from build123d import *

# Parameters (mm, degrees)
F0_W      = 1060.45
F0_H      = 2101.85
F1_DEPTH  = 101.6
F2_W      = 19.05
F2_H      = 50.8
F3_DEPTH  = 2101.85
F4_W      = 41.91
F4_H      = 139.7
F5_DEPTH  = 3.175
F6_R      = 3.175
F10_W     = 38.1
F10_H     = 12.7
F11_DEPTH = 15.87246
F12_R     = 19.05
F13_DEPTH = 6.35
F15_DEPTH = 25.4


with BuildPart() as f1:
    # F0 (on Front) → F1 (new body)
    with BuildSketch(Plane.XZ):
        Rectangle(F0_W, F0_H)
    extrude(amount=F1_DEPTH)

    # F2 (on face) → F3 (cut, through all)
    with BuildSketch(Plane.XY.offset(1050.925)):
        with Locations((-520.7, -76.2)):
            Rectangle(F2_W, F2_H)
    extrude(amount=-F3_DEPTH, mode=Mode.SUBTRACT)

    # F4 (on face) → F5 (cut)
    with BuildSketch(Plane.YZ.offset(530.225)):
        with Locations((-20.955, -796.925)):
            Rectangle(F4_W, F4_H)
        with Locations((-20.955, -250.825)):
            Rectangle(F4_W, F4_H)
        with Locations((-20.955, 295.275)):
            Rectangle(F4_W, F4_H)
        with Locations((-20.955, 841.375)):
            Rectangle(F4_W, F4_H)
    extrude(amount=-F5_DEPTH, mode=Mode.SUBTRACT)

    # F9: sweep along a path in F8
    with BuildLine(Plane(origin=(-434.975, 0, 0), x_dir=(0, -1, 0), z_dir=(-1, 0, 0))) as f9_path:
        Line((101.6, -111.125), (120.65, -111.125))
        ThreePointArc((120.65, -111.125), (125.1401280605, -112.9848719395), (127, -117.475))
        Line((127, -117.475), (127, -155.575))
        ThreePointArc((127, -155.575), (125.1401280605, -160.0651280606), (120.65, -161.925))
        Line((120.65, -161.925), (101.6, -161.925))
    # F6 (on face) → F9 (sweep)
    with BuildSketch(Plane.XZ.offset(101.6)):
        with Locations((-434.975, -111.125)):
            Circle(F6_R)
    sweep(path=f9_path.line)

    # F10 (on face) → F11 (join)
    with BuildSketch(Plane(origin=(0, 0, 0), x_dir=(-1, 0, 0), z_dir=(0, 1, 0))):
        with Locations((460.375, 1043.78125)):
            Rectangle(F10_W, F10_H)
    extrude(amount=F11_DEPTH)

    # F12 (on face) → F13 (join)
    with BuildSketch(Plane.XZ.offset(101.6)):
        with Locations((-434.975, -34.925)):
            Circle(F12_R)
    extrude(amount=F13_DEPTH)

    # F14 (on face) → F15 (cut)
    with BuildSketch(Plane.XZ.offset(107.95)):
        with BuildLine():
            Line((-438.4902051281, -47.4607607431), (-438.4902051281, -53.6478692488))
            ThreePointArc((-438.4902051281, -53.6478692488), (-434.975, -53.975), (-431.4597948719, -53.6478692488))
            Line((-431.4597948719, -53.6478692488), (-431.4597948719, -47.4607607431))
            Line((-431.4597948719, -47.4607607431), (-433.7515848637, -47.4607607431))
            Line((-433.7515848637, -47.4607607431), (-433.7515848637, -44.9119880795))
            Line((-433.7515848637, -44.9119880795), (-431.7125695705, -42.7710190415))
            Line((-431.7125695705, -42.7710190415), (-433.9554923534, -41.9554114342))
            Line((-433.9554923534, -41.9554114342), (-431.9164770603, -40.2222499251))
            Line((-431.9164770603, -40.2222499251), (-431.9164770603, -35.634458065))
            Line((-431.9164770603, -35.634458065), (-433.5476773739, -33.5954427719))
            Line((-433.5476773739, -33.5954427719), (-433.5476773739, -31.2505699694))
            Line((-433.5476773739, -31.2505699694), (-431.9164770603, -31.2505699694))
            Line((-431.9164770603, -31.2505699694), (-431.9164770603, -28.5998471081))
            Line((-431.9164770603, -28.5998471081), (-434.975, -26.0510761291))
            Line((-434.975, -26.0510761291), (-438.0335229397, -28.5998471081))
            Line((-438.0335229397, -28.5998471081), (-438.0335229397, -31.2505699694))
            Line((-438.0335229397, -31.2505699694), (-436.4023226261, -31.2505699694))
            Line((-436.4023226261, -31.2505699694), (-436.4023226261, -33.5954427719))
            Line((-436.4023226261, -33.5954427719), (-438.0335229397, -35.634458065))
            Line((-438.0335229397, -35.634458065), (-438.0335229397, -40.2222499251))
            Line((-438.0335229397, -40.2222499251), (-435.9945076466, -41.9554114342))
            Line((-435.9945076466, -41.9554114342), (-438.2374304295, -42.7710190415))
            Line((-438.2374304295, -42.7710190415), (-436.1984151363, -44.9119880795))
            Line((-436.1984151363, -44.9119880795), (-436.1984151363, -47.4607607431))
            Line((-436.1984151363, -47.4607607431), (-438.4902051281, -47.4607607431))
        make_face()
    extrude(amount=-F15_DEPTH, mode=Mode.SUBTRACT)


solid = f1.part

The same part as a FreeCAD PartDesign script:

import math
import FreeCAD as App
import Part
import Sketcher

V = App.Vector
Q = App.Units.Quantity


def add_polygon(sketch, points):
    """Adds a closed chain of lines whose ends are joined by coincident constraints."""
    first, n = sketch.GeometryCount, len(points)
    for a, b in zip(points, points[1:] + points[:1]):
        sketch.addGeometry(Part.LineSegment(App.Vector(*a, 0), App.Vector(*b, 0)), False)
    for i in range(n):
        sketch.addConstraint(Sketcher.Constraint("Coincident", first + i, 2, first + (i + 1) % n, 1))

doc = App.newDocument("Part")
body = doc.addObject("PartDesign::Body", "Body")

# Sketch on XZ plane
sketch1 = body.newObject("Sketcher::SketchObject", "Sketch")
sketch1.AttachmentSupport = (doc.getObject("XZ_Plane"), [""])
sketch1.MapMode = "FlatFace"
add_polygon(sketch1, [(-530, 1051), (-530, -1051), (530, -1051), (530, 1051)])  # lines 0-3
sketch1.addConstraint(Sketcher.Constraint("Vertical", 0))
sketch1.addConstraint(Sketcher.Constraint("Horizontal", 1))
sketch1.addConstraint(Sketcher.Constraint("Vertical", 2))
sketch1.addConstraint(Sketcher.Constraint("Horizontal", 3))
sketch1.addConstraint(Sketcher.Constraint("Symmetric", 0, 2, 2, 2, -1, 1))
sketch1.addConstraint(Sketcher.Constraint("DistanceX", 1, 1, 1, 2, Q("41.75 in")))
sketch1.addConstraint(Sketcher.Constraint("DistanceY", 0, 2, 0, 1, Q("82.75 in")))
pad1 = body.newObject("PartDesign::Pad", "Pad")
pad1.Profile = sketch1
pad1.Length = Q("4 in")

# Sketch on XY plane
sketch2 = body.newObject("Sketcher::SketchObject", "Sketch001")
sketch2.AttachmentSupport = (doc.getObject("XY_Plane"), [""])
sketch2.MapMode = "FlatFace"
sketch2.AttachmentOffset = App.Placement(V(0, 0, 41.375 * 25.4), App.Rotation())
add_polygon(sketch2, [(-530, -51), (-530, -102), (-511, -102), (-511, -51)])  # lines 0-3
sketch2.addConstraint(Sketcher.Constraint("Vertical", 0))
sketch2.addConstraint(Sketcher.Constraint("Horizontal", 1))
sketch2.addConstraint(Sketcher.Constraint("Vertical", 2))
sketch2.addConstraint(Sketcher.Constraint("Horizontal", 3))
sketch2.addConstraint(Sketcher.Constraint("DistanceY", 0, 2, 0, 1, Q("2 in")))
sketch2.addConstraint(Sketcher.Constraint("DistanceY", 0, 2, -1, 1, Q("4 in")))
sketch2.addConstraint(Sketcher.Constraint("DistanceX", 1, 1, 1, 2, Q("0.75 in")))
sketch2.addConstraint(Sketcher.Constraint("DistanceX", 0, 2, -1, 1, Q("20.875 in")))
pocket1 = body.newObject("PartDesign::Pocket", "Pocket")
pocket1.Profile = sketch2
pocket1.Type = "ThroughAll"

# Sketch on YZ plane
sketch3 = body.newObject("Sketcher::SketchObject", "Sketch002")
sketch3.AttachmentSupport = (doc.getObject("YZ_Plane"), [""])
sketch3.MapMode = "FlatFace"
sketch3.AttachmentOffset = App.Placement(V(0, 0, 20.875 * 25.4), App.Rotation())
add_polygon(sketch3, [(-42, -727), (-42, -867), (0, -867), (0, -727)])  # lines 0-3
add_polygon(sketch3, [(-42, -181), (-42, -321), (0, -321), (0, -181)])  # lines 4-7
add_polygon(sketch3, [(-42, 365), (-42, 225), (0, 225), (0, 365)])  # lines 8-11
add_polygon(sketch3, [(-42, 911), (-42, 772), (0, 772), (0, 911)])  # lines 12-15
sketch3.addConstraint(Sketcher.Constraint("Vertical", 0))
sketch3.addConstraint(Sketcher.Constraint("Horizontal", 1))
sketch3.addConstraint(Sketcher.Constraint("Vertical", 2))
sketch3.addConstraint(Sketcher.Constraint("Horizontal", 3))
sketch3.addConstraint(Sketcher.Constraint("Vertical", 4))
sketch3.addConstraint(Sketcher.Constraint("Horizontal", 5))
sketch3.addConstraint(Sketcher.Constraint("Vertical", 6))
sketch3.addConstraint(Sketcher.Constraint("Horizontal", 7))
sketch3.addConstraint(Sketcher.Constraint("Vertical", 8))
sketch3.addConstraint(Sketcher.Constraint("Horizontal", 9))
sketch3.addConstraint(Sketcher.Constraint("Vertical", 10))
sketch3.addConstraint(Sketcher.Constraint("Horizontal", 11))
sketch3.addConstraint(Sketcher.Constraint("Vertical", 12))
sketch3.addConstraint(Sketcher.Constraint("Horizontal", 13))
sketch3.addConstraint(Sketcher.Constraint("Vertical", 14))
sketch3.addConstraint(Sketcher.Constraint("Horizontal", 15))
sketch3.addConstraint(Sketcher.Constraint("PointOnObject", 1, 2, -2))
sketch3.addConstraint(Sketcher.Constraint("PointOnObject", 5, 2, -2))
sketch3.addConstraint(Sketcher.Constraint("PointOnObject", 9, 2, -2))
sketch3.addConstraint(Sketcher.Constraint("PointOnObject", 13, 2, -2))
sketch3.addConstraint(Sketcher.Constraint("Vertical", 3, 2, 4, 2))
sketch3.addConstraint(Sketcher.Constraint("Vertical", 7, 2, 8, 2))
sketch3.addConstraint(Sketcher.Constraint("Vertical", 11, 2, 12, 2))
sketch3.addConstraint(Sketcher.Constraint("Equal", 2, 4))
sketch3.addConstraint(Sketcher.Constraint("Equal", 6, 8))
sketch3.addConstraint(Sketcher.Constraint("Equal", 10, 12))
sketch3.addConstraint(Sketcher.Constraint("DistanceY", 0, 2, 0, 1, Q("5.5 in")))
sketch3.addConstraint(Sketcher.Constraint("DistanceY", 3, 2, 4, 2, Q("16 in")))
sketch3.addConstraint(Sketcher.Constraint("DistanceY", 7, 2, 8, 2, Q("16 in")))
sketch3.addConstraint(Sketcher.Constraint("DistanceY", 11, 2, 12, 2, Q("16 in")))
sketch3.addConstraint(Sketcher.Constraint("DistanceX", 1, 1, 1, 2, Q("1.65 in")))
sketch3.addConstraint(Sketcher.Constraint("DistanceY", 0, 2, -1, 1, Q("34.125 in")))
pocket2 = body.newObject("PartDesign::Pocket", "Pocket001")
pocket2.Profile = sketch3
pocket2.Length = Q("0.125 in")

# Sketch on XZ plane
sketch4 = body.newObject("Sketcher::SketchObject", "Sketch003")
sketch4.AttachmentSupport = (doc.getObject("XZ_Plane"), [""])
sketch4.MapMode = "FlatFace"
sketch4.AttachmentOffset = App.Placement(V(0, 0, 4 * 25.4), App.Rotation())
sketch4.addGeometry(Part.Circle(V(-435, -111.1, 0), V(0, 0, 1), 3.2), False)
sketch4.addConstraint(Sketcher.Constraint("Diameter", 0, Q("0.25 in")))
sketch4.addConstraint(Sketcher.Constraint("DistanceX", 0, 3, -1, 1, Q("17.125 in")))
sketch4.addConstraint(Sketcher.Constraint("DistanceY", 0, 3, -1, 1, Q("4.375 in")))

# Sketch on YZ plane
sketch5 = body.newObject("Sketcher::SketchObject", "Sketch004")
sketch5.AttachmentSupport = (doc.getObject("YZ_Plane"), [""])
sketch5.MapMode = "FlatFace"
sketch5.AttachmentOffset = App.Placement(V(0, 0, -17.125 * 25.4), App.Rotation())
sketch5.addGeometry(Part.LineSegment(V(-102, -111, 0), V(-121, -111, 0)), False)
sketch5.addGeometry(Part.ArcOfCircle(Part.Circle(V(-121, -117, 0), V(0, 0, 1), 6), math.radians(90), math.radians(180)), False)
sketch5.addGeometry(Part.LineSegment(V(-127, -117, 0), V(-127, -156, 0)), False)
sketch5.addGeometry(Part.ArcOfCircle(Part.Circle(V(-121, -156, 0), V(0, 0, 1), 6), math.radians(180), math.radians(270)), False)
sketch5.addGeometry(Part.LineSegment(V(-121, -162, 0), V(-102, -162, 0)), False)
sketch5.addConstraint(Sketcher.Constraint("Tangent", 0, 2, 1, 1))
sketch5.addConstraint(Sketcher.Constraint("Tangent", 1, 2, 2, 1))
sketch5.addConstraint(Sketcher.Constraint("Tangent", 2, 2, 3, 1))
sketch5.addConstraint(Sketcher.Constraint("Tangent", 3, 2, 4, 1))
sketch5.addConstraint(Sketcher.Constraint("Horizontal", 0))
sketch5.addConstraint(Sketcher.Constraint("Vertical", 2))
sketch5.addConstraint(Sketcher.Constraint("Horizontal", 4))
sketch5.addConstraint(Sketcher.Constraint("Equal", 1, 3))
sketch5.addConstraint(Sketcher.Constraint("Vertical", 0, 1, 4, 2))
sketch5.addConstraint(Sketcher.Constraint("Radius", 1, Q("0.25 in")))
sketch5.addConstraint(Sketcher.Constraint("DistanceY", 2, 2, 2, 1, Q("1.5 in")))
sketch5.addConstraint(Sketcher.Constraint("DistanceX", 0, 1, -1, 1, Q("4 in")))
sketch5.addConstraint(Sketcher.Constraint("DistanceX", 1, 2, -1, 1, Q("5 in")))
sketch5.addConstraint(Sketcher.Constraint("DistanceY", 1, 3, -1, 1, Q("4.625 in")))
doc.recompute()

additivepipe = body.newObject("PartDesign::AdditivePipe", "AdditivePipe")
additivepipe.Profile = sketch4
additivepipe.Spine = (sketch5, ["Edge1", "Edge2", "Edge3", "Edge4", "Edge5"])

# Sketch on XZ plane
sketch6 = body.newObject("Sketcher::SketchObject", "Sketch005")
sketch6.AttachmentSupport = (doc.getObject("XZ_Plane"), [""])
sketch6.MapMode = "FlatFace"
add_polygon(sketch6, [(-441, 1050), (-441, 1037), (-479, 1037), (-479, 1050)])  # lines 0-3
sketch6.addConstraint(Sketcher.Constraint("Vertical", 0))
sketch6.addConstraint(Sketcher.Constraint("Horizontal", 1))
sketch6.addConstraint(Sketcher.Constraint("Vertical", 2))
sketch6.addConstraint(Sketcher.Constraint("Horizontal", 3))
sketch6.addConstraint(Sketcher.Constraint("DistanceX", 1, 2, 1, 1, Q("1.5 in")))
sketch6.addConstraint(Sketcher.Constraint("DistanceY", 0, 2, 0, 1, Q("0.5 in")))
sketch6.addConstraint(Sketcher.Constraint("DistanceX", 0, 2, -1, 1, Q("17.375 in")))
sketch6.addConstraint(Sketcher.Constraint("DistanceY", -1, 1, 0, 2, Q("40.84375 in")))
pad2 = body.newObject("PartDesign::Pad", "Pad001")
pad2.Profile = sketch6
pad2.Length = Q("0.6249 in")
pad2.Reversed = True

# Sketch on XZ plane
sketch7 = body.newObject("Sketcher::SketchObject", "Sketch006")
sketch7.AttachmentSupport = (doc.getObject("XZ_Plane"), [""])
sketch7.MapMode = "FlatFace"
sketch7.AttachmentOffset = App.Placement(V(0, 0, 4 * 25.4), App.Rotation())
sketch7.addGeometry(Part.Circle(V(-435, -35, 0), V(0, 0, 1), 19), False)
sketch7.addConstraint(Sketcher.Constraint("Diameter", 0, Q("1.5 in")))
sketch7.addConstraint(Sketcher.Constraint("DistanceX", 0, 3, -1, 1, Q("17.125 in")))
sketch7.addConstraint(Sketcher.Constraint("DistanceY", 0, 3, -1, 1, Q("1.375 in")))
pad3 = body.newObject("PartDesign::Pad", "Pad002")
pad3.Profile = sketch7
pad3.Length = Q("0.25 in")

# Sketch on XZ plane
sketch8 = body.newObject("Sketcher::SketchObject", "Sketch007")
sketch8.AttachmentSupport = (doc.getObject("XZ_Plane"), [""])
sketch8.MapMode = "FlatFace"
sketch8.AttachmentOffset = App.Placement(V(0, 0, 4.25 * 25.4), App.Rotation())
sketch8.addGeometry(Part.LineSegment(V(-438.5, -47.5, 0), V(-438.5, -53.6, 0)), False)
sketch8.addGeometry(Part.ArcOfCircle(Part.Circle(V(-435, -34.9, 0), V(0, 0, 1), 19.1), math.radians(-101), math.radians(-79)), False)
sketch8.addGeometry(Part.LineSegment(V(-431.5, -53.6, 0), V(-431.5, -47.5, 0)), False)
sketch8.addGeometry(Part.LineSegment(V(-431.5, -47.5, 0), V(-433.8, -47.5, 0)), False)
sketch8.addGeometry(Part.LineSegment(V(-433.8, -47.5, 0), V(-433.8, -44.9, 0)), False)
sketch8.addGeometry(Part.LineSegment(V(-433.8, -44.9, 0), V(-431.7, -42.8, 0)), False)
sketch8.addGeometry(Part.LineSegment(V(-431.7, -42.8, 0), V(-434, -42, 0)), False)
sketch8.addGeometry(Part.LineSegment(V(-434, -42, 0), V(-431.9, -40.2, 0)), False)
sketch8.addGeometry(Part.LineSegment(V(-431.9, -40.2, 0), V(-431.9, -35.6, 0)), False)
sketch8.addGeometry(Part.LineSegment(V(-431.9, -35.6, 0), V(-433.5, -33.6, 0)), False)
sketch8.addGeometry(Part.LineSegment(V(-433.5, -33.6, 0), V(-433.5, -31.3, 0)), False)
sketch8.addGeometry(Part.LineSegment(V(-433.5, -31.3, 0), V(-431.9, -31.3, 0)), False)
sketch8.addGeometry(Part.LineSegment(V(-431.9, -31.3, 0), V(-431.9, -28.6, 0)), False)
sketch8.addGeometry(Part.LineSegment(V(-431.9, -28.6, 0), V(-435, -26.1, 0)), False)
sketch8.addGeometry(Part.LineSegment(V(-435, -26.1, 0), V(-438, -28.6, 0)), False)
sketch8.addGeometry(Part.LineSegment(V(-438, -28.6, 0), V(-438, -31.3, 0)), False)
sketch8.addGeometry(Part.LineSegment(V(-438, -31.3, 0), V(-436.4, -31.3, 0)), False)
sketch8.addGeometry(Part.LineSegment(V(-436.4, -31.3, 0), V(-436.4, -33.6, 0)), False)
sketch8.addGeometry(Part.LineSegment(V(-436.4, -33.6, 0), V(-438, -35.6, 0)), False)
sketch8.addGeometry(Part.LineSegment(V(-438, -35.6, 0), V(-438, -40.2, 0)), False)
sketch8.addGeometry(Part.LineSegment(V(-438, -40.2, 0), V(-436, -42, 0)), False)
sketch8.addGeometry(Part.LineSegment(V(-436, -42, 0), V(-438.2, -42.8, 0)), False)
sketch8.addGeometry(Part.LineSegment(V(-438.2, -42.8, 0), V(-436.2, -44.9, 0)), False)
sketch8.addGeometry(Part.LineSegment(V(-436.2, -44.9, 0), V(-436.2, -47.5, 0)), False)
sketch8.addGeometry(Part.LineSegment(V(-436.2, -47.5, 0), V(-438.5, -47.5, 0)), False)
sketch8.addConstraint(Sketcher.Constraint("Coincident", 0, 2, 1, 1))
sketch8.addConstraint(Sketcher.Constraint("Coincident", 1, 2, 2, 1))
sketch8.addConstraint(Sketcher.Constraint("Coincident", 2, 2, 3, 1))
sketch8.addConstraint(Sketcher.Constraint("Coincident", 3, 2, 4, 1))
sketch8.addConstraint(Sketcher.Constraint("Coincident", 4, 2, 5, 1))
sketch8.addConstraint(Sketcher.Constraint("Coincident", 5, 2, 6, 1))
sketch8.addConstraint(Sketcher.Constraint("Coincident", 6, 2, 7, 1))
sketch8.addConstraint(Sketcher.Constraint("Coincident", 7, 2, 8, 1))
sketch8.addConstraint(Sketcher.Constraint("Coincident", 8, 2, 9, 1))
sketch8.addConstraint(Sketcher.Constraint("Coincident", 9, 2, 10, 1))
sketch8.addConstraint(Sketcher.Constraint("Coincident", 10, 2, 11, 1))
sketch8.addConstraint(Sketcher.Constraint("Coincident", 11, 2, 12, 1))
sketch8.addConstraint(Sketcher.Constraint("Coincident", 12, 2, 13, 1))
sketch8.addConstraint(Sketcher.Constraint("Coincident", 13, 2, 14, 1))
sketch8.addConstraint(Sketcher.Constraint("Coincident", 14, 2, 15, 1))
sketch8.addConstraint(Sketcher.Constraint("Coincident", 15, 2, 16, 1))
sketch8.addConstraint(Sketcher.Constraint("Coincident", 16, 2, 17, 1))
sketch8.addConstraint(Sketcher.Constraint("Coincident", 17, 2, 18, 1))
sketch8.addConstraint(Sketcher.Constraint("Coincident", 18, 2, 19, 1))
sketch8.addConstraint(Sketcher.Constraint("Coincident", 19, 2, 20, 1))
sketch8.addConstraint(Sketcher.Constraint("Coincident", 20, 2, 21, 1))
sketch8.addConstraint(Sketcher.Constraint("Coincident", 21, 2, 22, 1))
sketch8.addConstraint(Sketcher.Constraint("Coincident", 22, 2, 23, 1))
sketch8.addConstraint(Sketcher.Constraint("Coincident", 23, 2, 24, 1))
sketch8.addConstraint(Sketcher.Constraint("Coincident", 24, 2, 0, 1))
sketch8.addConstraint(Sketcher.Constraint("Vertical", 0))
sketch8.addConstraint(Sketcher.Constraint("Vertical", 2))
sketch8.addConstraint(Sketcher.Constraint("Horizontal", 3))
sketch8.addConstraint(Sketcher.Constraint("Vertical", 4))
sketch8.addConstraint(Sketcher.Constraint("Vertical", 8))
sketch8.addConstraint(Sketcher.Constraint("Vertical", 10))
sketch8.addConstraint(Sketcher.Constraint("Horizontal", 11))
sketch8.addConstraint(Sketcher.Constraint("Vertical", 12))
sketch8.addConstraint(Sketcher.Constraint("Vertical", 15))
sketch8.addConstraint(Sketcher.Constraint("Horizontal", 16))
sketch8.addConstraint(Sketcher.Constraint("Vertical", 17))
sketch8.addConstraint(Sketcher.Constraint("Vertical", 19))
sketch8.addConstraint(Sketcher.Constraint("Vertical", 23))
sketch8.addConstraint(Sketcher.Constraint("Horizontal", 24))
sketch8.addConstraint(Sketcher.Constraint("Horizontal", 0, 2, 1, 2))
sketch8.addConstraint(Sketcher.Constraint("Horizontal", 12, 2, 14, 2))
sketch8.addConstraint(Sketcher.Constraint("Horizontal", 11, 2, 15, 2))
sketch8.addConstraint(Sketcher.Constraint("Horizontal", 9, 2, 17, 2))
sketch8.addConstraint(Sketcher.Constraint("Horizontal", 8, 2, 18, 2))
sketch8.addConstraint(Sketcher.Constraint("Horizontal", 7, 2, 19, 2))
sketch8.addConstraint(Sketcher.Constraint("Horizontal", 6, 2, 20, 2))
sketch8.addConstraint(Sketcher.Constraint("Horizontal", 5, 2, 21, 2))
sketch8.addConstraint(Sketcher.Constraint("Horizontal", 4, 2, 22, 2))
sketch8.addConstraint(Sketcher.Constraint("Horizontal", 3, 2, 23, 2))
sketch8.addConstraint(Sketcher.Constraint("Vertical", 8, 2, 11, 2))
sketch8.addConstraint(Sketcher.Constraint("Vertical", 1, 3, 13, 2))
sketch8.addConstraint(Sketcher.Constraint("Vertical", 15, 2, 18, 2))
sketch8.addConstraint(Sketcher.Constraint("Equal", 11, 16))
sketch8.addConstraint(Sketcher.Constraint("Equal", 3, 24))
sketch8.addConstraint(Sketcher.Constraint("Equal", 13, 14))
sketch8.addConstraint(Sketcher.Constraint("Equal", 7, 20))
sketch8.addConstraint(Sketcher.Constraint("Equal", 6, 21))
sketch8.addConstraint(Sketcher.Constraint("Radius", 1, Q("0.75 in")))
sketch8.addConstraint(Sketcher.Constraint("DistanceX", 1, 3, -1, 1, Q("17.125 in")))
sketch8.addConstraint(Sketcher.Constraint("DistanceY", 1, 3, -1, 1, Q("1.375 in")))
sketch8.addConstraint(Sketcher.Constraint("DistanceX", 11, 1, 11, 2, Q("1.6312 mm")))
sketch8.addConstraint(Sketcher.Constraint("DistanceX", 3, 2, 3, 1, Q("2.29179 mm")))
sketch8.addConstraint(Sketcher.Constraint("DistanceY", 0, 2, 0, 1, Q("6.187109 mm")))
sketch8.addConstraint(Sketcher.Constraint("DistanceY", 8, 1, 8, 2, Q("4.587792 mm")))
sketch8.addConstraint(Sketcher.Constraint("DistanceY", 4, 1, 4, 2, Q("2.548773 mm")))
sketch8.addConstraint(Sketcher.Constraint("DistanceY", 10, 1, 10, 2, Q("2.344873 mm")))
sketch8.addConstraint(Sketcher.Constraint("DistanceY", 12, 1, 12, 2, Q("2.650723 mm")))
sketch8.addConstraint(Sketcher.Constraint("DistanceY", 0, 2, -1, 1, Q("53.647869 mm")))
sketch8.addConstraint(Sketcher.Constraint("DistanceX", 5, 2, -1, 1, Q("431.71257 mm")))
sketch8.addConstraint(Sketcher.Constraint("DistanceY", 5, 2, -1, 1, Q("42.771019 mm")))
sketch8.addConstraint(Sketcher.Constraint("DistanceY", 6, 2, -1, 1, Q("41.955411 mm")))
sketch8.addConstraint(Sketcher.Constraint("DistanceY", 7, 2, -1, 1, Q("40.22225 mm")))
sketch8.addConstraint(Sketcher.Constraint("DistanceY", 10, 2, -1, 1, Q("31.25057 mm")))
sketch8.addConstraint(Sketcher.Constraint("DistanceY", 12, 2, 13, 2, Q("2.548771 mm")))
sketch8.addConstraint(Sketcher.Constraint("DistanceX", 19, 2, 6, 2, Q("4.078031 mm")))
sketch8.addConstraint(Sketcher.Constraint("DistanceX", 19, 2, 4, 2, Q("4.281938 mm")))
pocket3 = body.newObject("PartDesign::Pocket", "Pocket002")
pocket3.Profile = sketch8
pocket3.Length = Q("1 in")

doc.recompute()
